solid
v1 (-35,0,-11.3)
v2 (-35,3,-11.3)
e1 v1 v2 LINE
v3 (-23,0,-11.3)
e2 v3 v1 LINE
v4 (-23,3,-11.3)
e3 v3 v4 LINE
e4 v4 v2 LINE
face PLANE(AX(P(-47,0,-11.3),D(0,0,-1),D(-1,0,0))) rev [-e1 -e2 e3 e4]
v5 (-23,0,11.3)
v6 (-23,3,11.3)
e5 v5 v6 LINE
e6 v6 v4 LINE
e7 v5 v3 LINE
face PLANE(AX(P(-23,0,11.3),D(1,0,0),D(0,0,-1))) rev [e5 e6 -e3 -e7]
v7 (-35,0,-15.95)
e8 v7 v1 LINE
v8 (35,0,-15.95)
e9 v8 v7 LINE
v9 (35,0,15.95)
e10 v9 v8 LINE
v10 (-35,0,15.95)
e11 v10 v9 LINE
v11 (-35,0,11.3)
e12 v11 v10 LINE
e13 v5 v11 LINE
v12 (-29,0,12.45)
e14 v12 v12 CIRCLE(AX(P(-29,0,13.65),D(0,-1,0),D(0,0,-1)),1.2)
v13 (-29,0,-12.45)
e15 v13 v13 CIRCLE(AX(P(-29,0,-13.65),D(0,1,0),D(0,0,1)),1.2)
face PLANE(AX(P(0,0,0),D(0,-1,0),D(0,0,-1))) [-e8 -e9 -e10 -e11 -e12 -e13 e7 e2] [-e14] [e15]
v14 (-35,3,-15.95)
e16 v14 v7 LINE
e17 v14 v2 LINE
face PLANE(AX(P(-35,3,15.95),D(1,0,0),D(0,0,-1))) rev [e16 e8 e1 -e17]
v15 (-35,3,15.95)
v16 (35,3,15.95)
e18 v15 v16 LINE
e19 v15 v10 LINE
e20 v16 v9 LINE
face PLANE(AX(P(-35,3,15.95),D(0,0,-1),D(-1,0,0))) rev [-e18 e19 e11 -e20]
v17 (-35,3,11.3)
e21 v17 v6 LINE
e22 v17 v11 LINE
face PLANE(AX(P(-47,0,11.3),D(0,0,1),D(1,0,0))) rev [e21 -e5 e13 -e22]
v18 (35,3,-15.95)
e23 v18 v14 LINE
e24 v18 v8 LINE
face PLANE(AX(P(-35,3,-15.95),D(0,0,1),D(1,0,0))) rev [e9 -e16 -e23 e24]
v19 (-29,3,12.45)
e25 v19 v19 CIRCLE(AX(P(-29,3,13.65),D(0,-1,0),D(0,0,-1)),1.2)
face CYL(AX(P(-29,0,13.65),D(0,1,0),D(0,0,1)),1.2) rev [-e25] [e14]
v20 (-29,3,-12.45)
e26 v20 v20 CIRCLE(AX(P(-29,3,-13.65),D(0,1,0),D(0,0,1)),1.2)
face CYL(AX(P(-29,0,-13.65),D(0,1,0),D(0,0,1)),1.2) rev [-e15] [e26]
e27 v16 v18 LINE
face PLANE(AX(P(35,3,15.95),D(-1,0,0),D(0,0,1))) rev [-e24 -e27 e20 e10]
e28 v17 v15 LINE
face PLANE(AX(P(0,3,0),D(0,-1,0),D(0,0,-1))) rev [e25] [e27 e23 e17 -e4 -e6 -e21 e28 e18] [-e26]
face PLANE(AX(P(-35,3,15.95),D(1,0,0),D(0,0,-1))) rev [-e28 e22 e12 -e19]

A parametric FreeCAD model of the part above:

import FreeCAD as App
import Part
import Sketcher
Q = App.Units.Quantity

doc = App.newDocument("Part")
body = doc.addObject("PartDesign::Body", "Body")

# Sketch on XZ plane
sketch1 = doc.addObject("Sketcher::SketchObject", "Sketch")
body.addObject(sketch1)
sketch1.AttachmentSupport = (doc.XZ_Plane, [""])
sketch1.MapMode = "FlatFace"
sketch1.addGeometry(Part.LineSegment(App.Vector(-35, -16, 0), App.Vector(-35, 16, 0)), False)
sketch1.addGeometry(Part.LineSegment(App.Vector(-35, 16, 0), App.Vector(35, 16, 0)), False)
sketch1.addGeometry(Part.LineSegment(App.Vector(35, 16, 0), App.Vector(35, -16, 0)), False)
sketch1.addGeometry(Part.LineSegment(App.Vector(35, -16, 0), App.Vector(-35, -16, 0)), False)
sketch1.addConstraint(Sketcher.Constraint("Coincident", 0, 2, 1, 1))
sketch1.addConstraint(Sketcher.Constraint("Coincident", 1, 2, 2, 1))
sketch1.addConstraint(Sketcher.Constraint("Coincident", 2, 2, 3, 1))
sketch1.addConstraint(Sketcher.Constraint("Coincident", 3, 2, 0, 1))
sketch1.addConstraint(Sketcher.Constraint("Vertical", 0))
sketch1.addConstraint(Sketcher.Constraint("Horizontal", 1))
sketch1.addConstraint(Sketcher.Constraint("Vertical", 2))
sketch1.addConstraint(Sketcher.Constraint("Horizontal", 3))
sketch1.addConstraint(Sketcher.Constraint("Symmetric", 0, 2, 2, 2, -1, 1))
sketch1.addConstraint(Sketcher.Constraint("DistanceX", 1, 1, 1, 2, Q("70 mm")))
sketch1.addConstraint(Sketcher.Constraint("DistanceY", 0, 1, 0, 2, Q("31.9 mm")))
pad1 = doc.addObject("PartDesign::Pad", "Pad")
body.addObject(pad1)
pad1.Profile = sketch1
pad1.Length = 3
pad1.Reversed = True

# Sketch on XZ plane
sketch2 = doc.addObject("Sketcher::SketchObject", "Sketch001")
body.addObject(sketch2)
sketch2.AttachmentSupport = (doc.XZ_Plane, [""])
sketch2.MapMode = "FlatFace"
sketch2.AttachmentOffset = App.Placement(App.Vector(0, 0, -3), App.Rotation())
sketch2.addGeometry(Part.Circle(App.Vector(-29, -13.7, 0), App.Vector(0, 0, 1), 1.2), False)
sketch2.addConstraint(Sketcher.Constraint("Diameter", 0, Q("2.4 mm")))
sketch2.addConstraint(Sketcher.Constraint("DistanceX", 0, 3, -1, 1, Q("29 mm")))
sketch2.addConstraint(Sketcher.Constraint("DistanceY", 0, 3, -1, 1, Q("13.65 mm")))
pocket1 = doc.addObject("PartDesign::Pocket", "Pocket")
body.addObject(pocket1)
pocket1.Profile = sketch2
pocket1.Length = 3
pocket1.Reversed = True
doc.recompute()

mirrored = doc.addObject("PartDesign::Mirrored", "Mirrored")
body.addObject(mirrored)
mirrored.Originals = [pocket1]
mirrored.MirrorPlane = (doc.XY_Plane, [""])
body.Tip = mirrored

# Sketch on XZ plane
sketch3 = doc.addObject("Sketcher::SketchObject", "Sketch002")
body.addObject(sketch3)
sketch3.AttachmentSupport = (doc.XZ_Plane, [""])
sketch3.MapMode = "FlatFace"
sketch3.AttachmentOffset = App.Placement(App.Vector(0, 0, -3), App.Rotation())
sketch3.addGeometry(Part.LineSegment(App.Vector(-47, -11, 0), App.Vector(-47, 11, 0)), False)
sketch3.addGeometry(Part.LineSegment(App.Vector(-47, 11, 0), App.Vector(-23, 11, 0)), False)
sketch3.addGeometry(Part.LineSegment(App.Vector(-23, 11, 0), App.Vector(-23, -11, 0)), False)
sketch3.addGeometry(Part.LineSegment(App.Vector(-23, -11, 0), App.Vector(-47, -11, 0)), False)
sketch3.addConstraint(Sketcher.Constraint("Coincident", 0, 2, 1, 1))
sketch3.addConstraint(Sketcher.Constraint("Coincident", 1, 2, 2, 1))
sketch3.addConstraint(Sketcher.Constraint("Coincident", 2, 2, 3, 1))
sketch3.addConstraint(Sketcher.Constraint("Coincident", 3, 2, 0, 1))
sketch3.addConstraint(Sketcher.Constraint("Vertical", 0))
sketch3.addConstraint(Sketcher.Constraint("Horizontal", 1))
sketch3.addConstraint(Sketcher.Constraint("Vertical", 2))
sketch3.addConstraint(Sketcher.Constraint("Horizontal", 3))
sketch3.addConstraint(Sketcher.Constraint("DistanceX", 1, 1, 1, 2, Q("24 mm")))
sketch3.addConstraint(Sketcher.Constraint("DistanceY", 0, 1, 0, 2, Q("22.6 mm")))
sketch3.addConstraint(Sketcher.Constraint("DistanceX", 0, 2, -1, 1, Q("47 mm")))
sketch3.addConstraint(Sketcher.Constraint("DistanceY", -1, 1, 0, 2, Q("11.3 mm")))
pocket2 = doc.addObject("PartDesign::Pocket", "Pocket001")
body.addObject(pocket2)
pocket2.Profile = sketch3
pocket2.Length = 3
pocket2.Reversed = True

doc.recompute()
